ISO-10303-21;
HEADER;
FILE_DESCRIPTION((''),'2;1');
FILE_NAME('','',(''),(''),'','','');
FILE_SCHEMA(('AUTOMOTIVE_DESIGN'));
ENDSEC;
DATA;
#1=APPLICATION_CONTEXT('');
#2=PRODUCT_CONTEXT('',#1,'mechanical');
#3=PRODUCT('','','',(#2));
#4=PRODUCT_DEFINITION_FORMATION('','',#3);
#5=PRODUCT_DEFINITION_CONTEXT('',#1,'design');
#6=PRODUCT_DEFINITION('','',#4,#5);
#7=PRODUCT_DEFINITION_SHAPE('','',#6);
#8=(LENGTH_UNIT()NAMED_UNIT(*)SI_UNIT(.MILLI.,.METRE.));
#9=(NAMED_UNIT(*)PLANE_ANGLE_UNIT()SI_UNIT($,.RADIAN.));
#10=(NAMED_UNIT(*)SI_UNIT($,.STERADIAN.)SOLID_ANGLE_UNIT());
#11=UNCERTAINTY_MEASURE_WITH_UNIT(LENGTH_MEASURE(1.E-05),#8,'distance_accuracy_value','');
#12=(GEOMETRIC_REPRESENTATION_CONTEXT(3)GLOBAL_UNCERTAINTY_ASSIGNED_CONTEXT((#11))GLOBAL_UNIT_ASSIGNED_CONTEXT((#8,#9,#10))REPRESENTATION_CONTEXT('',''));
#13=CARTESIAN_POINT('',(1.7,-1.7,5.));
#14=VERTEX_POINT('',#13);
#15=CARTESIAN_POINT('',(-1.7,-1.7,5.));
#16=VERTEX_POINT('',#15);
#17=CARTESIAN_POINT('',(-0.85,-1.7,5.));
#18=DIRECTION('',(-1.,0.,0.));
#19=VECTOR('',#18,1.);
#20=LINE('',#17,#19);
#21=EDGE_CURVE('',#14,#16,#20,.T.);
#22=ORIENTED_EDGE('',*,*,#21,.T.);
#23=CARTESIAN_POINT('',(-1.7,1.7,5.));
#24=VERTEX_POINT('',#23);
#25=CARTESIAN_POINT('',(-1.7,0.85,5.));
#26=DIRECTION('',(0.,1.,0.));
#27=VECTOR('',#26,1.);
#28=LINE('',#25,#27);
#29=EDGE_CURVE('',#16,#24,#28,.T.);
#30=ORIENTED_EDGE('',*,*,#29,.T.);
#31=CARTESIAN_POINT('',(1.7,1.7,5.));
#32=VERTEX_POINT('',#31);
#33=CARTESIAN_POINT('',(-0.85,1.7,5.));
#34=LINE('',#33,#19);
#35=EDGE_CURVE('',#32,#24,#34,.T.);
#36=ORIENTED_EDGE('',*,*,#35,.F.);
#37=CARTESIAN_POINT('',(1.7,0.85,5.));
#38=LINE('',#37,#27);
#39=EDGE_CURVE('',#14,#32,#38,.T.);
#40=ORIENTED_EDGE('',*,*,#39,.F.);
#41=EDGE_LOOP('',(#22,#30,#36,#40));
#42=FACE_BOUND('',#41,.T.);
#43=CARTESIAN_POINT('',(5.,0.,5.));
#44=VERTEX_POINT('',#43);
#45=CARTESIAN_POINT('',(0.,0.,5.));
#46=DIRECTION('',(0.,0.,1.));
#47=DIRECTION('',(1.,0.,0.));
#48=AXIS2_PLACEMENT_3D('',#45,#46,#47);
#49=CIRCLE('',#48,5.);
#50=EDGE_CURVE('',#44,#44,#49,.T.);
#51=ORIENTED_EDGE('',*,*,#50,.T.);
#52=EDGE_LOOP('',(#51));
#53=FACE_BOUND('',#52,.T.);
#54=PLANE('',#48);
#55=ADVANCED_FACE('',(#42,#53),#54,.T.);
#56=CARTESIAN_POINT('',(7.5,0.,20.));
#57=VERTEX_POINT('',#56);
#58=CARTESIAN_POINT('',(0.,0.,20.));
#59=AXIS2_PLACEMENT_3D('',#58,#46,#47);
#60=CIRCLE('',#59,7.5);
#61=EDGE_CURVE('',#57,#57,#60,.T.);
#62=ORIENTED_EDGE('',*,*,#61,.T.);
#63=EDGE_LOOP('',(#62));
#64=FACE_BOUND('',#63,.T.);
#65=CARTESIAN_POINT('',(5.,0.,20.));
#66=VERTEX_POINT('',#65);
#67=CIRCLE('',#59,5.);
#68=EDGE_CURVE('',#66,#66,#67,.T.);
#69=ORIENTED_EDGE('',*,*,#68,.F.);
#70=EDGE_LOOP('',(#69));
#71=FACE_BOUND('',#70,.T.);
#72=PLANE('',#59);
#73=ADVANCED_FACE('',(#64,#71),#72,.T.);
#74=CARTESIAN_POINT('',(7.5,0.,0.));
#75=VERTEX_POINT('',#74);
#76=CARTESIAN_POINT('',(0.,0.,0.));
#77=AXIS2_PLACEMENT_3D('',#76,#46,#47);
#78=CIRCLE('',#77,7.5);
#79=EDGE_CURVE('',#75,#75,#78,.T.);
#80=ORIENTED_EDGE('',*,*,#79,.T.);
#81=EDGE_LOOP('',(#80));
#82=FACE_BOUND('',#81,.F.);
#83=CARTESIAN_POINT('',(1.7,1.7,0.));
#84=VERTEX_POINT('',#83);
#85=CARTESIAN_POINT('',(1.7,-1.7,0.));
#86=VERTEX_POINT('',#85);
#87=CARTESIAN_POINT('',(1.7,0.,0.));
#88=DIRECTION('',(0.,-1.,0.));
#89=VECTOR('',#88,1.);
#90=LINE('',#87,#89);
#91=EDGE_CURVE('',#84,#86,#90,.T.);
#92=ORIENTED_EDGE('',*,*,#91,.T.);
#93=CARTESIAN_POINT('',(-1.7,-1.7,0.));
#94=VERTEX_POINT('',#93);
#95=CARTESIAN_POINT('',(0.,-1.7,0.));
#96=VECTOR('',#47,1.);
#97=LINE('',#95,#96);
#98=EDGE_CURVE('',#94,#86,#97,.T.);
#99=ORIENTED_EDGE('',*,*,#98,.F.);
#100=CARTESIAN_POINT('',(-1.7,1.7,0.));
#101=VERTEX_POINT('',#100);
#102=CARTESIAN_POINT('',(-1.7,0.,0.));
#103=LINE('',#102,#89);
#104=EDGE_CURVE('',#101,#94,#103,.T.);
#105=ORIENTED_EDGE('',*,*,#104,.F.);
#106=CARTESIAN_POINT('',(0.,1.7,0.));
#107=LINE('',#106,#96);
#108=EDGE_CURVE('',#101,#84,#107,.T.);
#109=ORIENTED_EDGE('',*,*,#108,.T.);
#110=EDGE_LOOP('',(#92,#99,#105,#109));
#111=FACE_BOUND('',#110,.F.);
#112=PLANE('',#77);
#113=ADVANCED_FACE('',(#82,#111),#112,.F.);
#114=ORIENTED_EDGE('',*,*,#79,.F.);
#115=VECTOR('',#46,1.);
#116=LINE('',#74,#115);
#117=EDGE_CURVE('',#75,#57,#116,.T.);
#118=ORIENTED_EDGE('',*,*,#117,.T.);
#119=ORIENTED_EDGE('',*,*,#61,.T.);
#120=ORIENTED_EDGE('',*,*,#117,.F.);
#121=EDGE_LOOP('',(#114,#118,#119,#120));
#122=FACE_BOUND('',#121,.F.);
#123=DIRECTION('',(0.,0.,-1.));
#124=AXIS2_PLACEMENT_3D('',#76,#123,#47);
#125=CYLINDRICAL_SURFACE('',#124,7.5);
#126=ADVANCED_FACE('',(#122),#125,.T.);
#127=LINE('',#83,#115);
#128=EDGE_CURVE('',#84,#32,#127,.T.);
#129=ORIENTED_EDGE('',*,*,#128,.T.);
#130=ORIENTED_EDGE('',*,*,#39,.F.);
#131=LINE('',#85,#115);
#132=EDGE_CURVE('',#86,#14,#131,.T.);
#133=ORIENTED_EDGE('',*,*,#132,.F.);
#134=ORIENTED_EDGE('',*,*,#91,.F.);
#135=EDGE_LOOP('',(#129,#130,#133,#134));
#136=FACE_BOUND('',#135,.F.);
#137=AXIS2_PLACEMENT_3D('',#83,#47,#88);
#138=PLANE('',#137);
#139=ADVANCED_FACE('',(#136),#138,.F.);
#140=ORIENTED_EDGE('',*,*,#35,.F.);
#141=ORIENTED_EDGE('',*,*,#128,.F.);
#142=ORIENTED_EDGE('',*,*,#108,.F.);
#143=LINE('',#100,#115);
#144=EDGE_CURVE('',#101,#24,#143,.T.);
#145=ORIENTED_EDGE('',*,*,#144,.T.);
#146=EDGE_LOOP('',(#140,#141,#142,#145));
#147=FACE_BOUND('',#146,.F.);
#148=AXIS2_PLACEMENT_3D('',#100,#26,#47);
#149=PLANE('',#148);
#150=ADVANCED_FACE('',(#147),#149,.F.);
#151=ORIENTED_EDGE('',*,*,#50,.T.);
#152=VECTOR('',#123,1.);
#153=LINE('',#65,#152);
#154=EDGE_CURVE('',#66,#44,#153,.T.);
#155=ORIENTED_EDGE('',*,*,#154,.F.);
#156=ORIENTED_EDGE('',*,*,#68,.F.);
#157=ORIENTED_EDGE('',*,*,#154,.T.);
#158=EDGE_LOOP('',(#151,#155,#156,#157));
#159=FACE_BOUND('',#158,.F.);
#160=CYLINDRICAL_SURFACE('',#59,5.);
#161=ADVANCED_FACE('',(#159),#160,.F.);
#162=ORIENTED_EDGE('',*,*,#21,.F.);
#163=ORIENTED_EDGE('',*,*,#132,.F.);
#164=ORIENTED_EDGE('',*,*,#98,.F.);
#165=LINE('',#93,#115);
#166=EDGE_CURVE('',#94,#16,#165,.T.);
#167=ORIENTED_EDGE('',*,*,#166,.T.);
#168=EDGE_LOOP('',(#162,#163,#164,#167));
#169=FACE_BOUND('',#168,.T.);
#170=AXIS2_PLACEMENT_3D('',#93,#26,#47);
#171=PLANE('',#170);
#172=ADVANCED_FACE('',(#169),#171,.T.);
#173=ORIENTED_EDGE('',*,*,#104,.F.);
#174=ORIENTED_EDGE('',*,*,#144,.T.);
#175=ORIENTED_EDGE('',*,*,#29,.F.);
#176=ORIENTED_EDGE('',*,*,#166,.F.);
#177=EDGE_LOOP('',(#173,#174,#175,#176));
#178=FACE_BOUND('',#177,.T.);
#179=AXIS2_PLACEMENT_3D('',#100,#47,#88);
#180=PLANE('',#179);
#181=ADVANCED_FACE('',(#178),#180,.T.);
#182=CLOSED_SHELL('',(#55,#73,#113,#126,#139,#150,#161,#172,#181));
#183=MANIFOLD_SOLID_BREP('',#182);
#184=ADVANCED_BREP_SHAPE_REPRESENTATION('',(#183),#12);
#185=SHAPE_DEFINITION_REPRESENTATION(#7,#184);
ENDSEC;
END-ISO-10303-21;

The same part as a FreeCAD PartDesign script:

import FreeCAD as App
import Part
import Sketcher


def add_polygon(sketch, points):
    """Adds a closed chain of lines whose ends are joined by coincident constraints."""
    first, n = sketch.GeometryCount, len(points)
    for a, b in zip(points, points[1:] + points[:1]):
        sketch.addGeometry(Part.LineSegment(App.Vector(*a, 0), App.Vector(*b, 0)), False)
    for i in range(n):
        sketch.addConstraint(Sketcher.Constraint("Coincident", first + i, 2, first + (i + 1) % n, 1))

doc = App.newDocument("Part")
body = doc.addObject("PartDesign::Body", "Body")

sketch1 = body.newObject("Sketcher::SketchObject", "Sketch")
sketch1.AttachmentSupport = (doc.getObject("XY_Plane"), [""])
sketch1.MapMode = "FlatFace"
sketch1.addGeometry(Part.Circle(App.Vector(0, 0, 0), App.Vector(0, 0, 1), 8), False)
sketch1.addConstraint([
    Sketcher.Constraint("Coincident", 0, 3, -1, 1),
    Sketcher.Constraint("Diameter", 0, 15.0),
])
pad1 = body.newObject("PartDesign::Pad", "Pad")
pad1.Profile = sketch1
pad1.Length = 20

sketch2 = body.newObject("Sketcher::SketchObject", "Sketch001")
sketch2.AttachmentSupport = (doc.getObject("XY_Plane"), [""])
sketch2.MapMode = "FlatFace"
sketch2.AttachmentOffset = App.Placement(App.Vector(0, 0, 20), App.Rotation())
sketch2.addGeometry(Part.Circle(App.Vector(0, 0, 0), App.Vector(0, 0, 1), 5), False)
sketch2.addConstraint([
    Sketcher.Constraint("Coincident", 0, 3, -1, 1),
    Sketcher.Constraint("Diameter", 0, 10.0),
])
pocket1 = body.newObject("PartDesign::Pocket", "Pocket")
pocket1.Profile = sketch2
pocket1.Length = 15

sketch3 = body.newObject("Sketcher::SketchObject", "Sketch002")
sketch3.AttachmentSupport = (doc.getObject("XY_Plane"), [""])
sketch3.MapMode = "FlatFace"
add_polygon(sketch3, [(-1.7, -1.7), (-1.7, 1.7), (1.7, 1.7), (1.7, -1.7)])
sketch3.addConstraint([
    Sketcher.Constraint("Vertical", 0),
    Sketcher.Constraint("Horizontal", 1),
    Sketcher.Constraint("Vertical", 2),
    Sketcher.Constraint("Horizontal", 3),
    Sketcher.Constraint("Symmetric", 0, 2, 2, 2, -1, 1),
    Sketcher.Constraint("Equal", 3, 0),
    Sketcher.Constraint("DistanceX", 1, 1, 1, 2, 3.4),
])
pocket2 = body.newObject("PartDesign::Pocket", "Pocket001")
pocket2.Profile = sketch3
pocket2.Length = 10
pocket2.Reversed = True

doc.recompute()
